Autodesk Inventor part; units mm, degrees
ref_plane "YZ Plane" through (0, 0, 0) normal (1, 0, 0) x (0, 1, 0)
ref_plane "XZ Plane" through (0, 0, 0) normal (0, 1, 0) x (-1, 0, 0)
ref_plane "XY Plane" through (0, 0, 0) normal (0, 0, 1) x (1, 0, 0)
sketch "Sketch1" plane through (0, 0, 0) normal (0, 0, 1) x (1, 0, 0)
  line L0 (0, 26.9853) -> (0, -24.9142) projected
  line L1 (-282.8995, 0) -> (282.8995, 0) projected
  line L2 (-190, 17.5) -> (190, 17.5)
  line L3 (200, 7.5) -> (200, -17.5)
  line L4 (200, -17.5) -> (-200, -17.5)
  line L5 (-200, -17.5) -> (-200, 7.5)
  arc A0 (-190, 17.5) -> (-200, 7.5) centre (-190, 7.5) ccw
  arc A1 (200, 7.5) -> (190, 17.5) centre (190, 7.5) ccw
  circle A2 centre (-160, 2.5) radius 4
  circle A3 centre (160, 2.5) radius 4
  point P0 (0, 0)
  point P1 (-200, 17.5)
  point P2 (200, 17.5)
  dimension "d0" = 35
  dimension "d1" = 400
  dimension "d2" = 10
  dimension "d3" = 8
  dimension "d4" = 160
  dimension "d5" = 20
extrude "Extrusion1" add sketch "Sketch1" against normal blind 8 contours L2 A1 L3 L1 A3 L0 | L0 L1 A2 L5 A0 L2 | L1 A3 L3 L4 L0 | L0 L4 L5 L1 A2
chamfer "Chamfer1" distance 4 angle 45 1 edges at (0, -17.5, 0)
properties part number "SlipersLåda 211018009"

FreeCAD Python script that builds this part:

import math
import FreeCAD as App
import Part
import Sketcher
Q = App.Units.Quantity


def edges_at(feature, points):
    """Names of the edges that pass closest to the given points."""
    edges = feature.Shape.Edges
    near = lambda p: min(range(len(edges)), key=lambda i: edges[i].distToShape(Part.Vertex(*p))[0])
    return sorted({f"Edge{near(p) + 1}" for p in points})

doc = App.newDocument("Part")
body = doc.addObject("PartDesign::Body", "Body")

sketch1 = doc.addObject("Sketcher::SketchObject", "Sketch")
body.addObject(sketch1)
sketch1.AttachmentSupport = (doc.XY_Plane, [""])
sketch1.MapMode = "FlatFace"
sketch1.addGeometry([
    Part.LineSegment(App.Vector(190, 17.5, 0), App.Vector(-190, 17.5, 0)),
    Part.ArcOfCircle(Part.Circle(App.Vector(-190, 7.5, 0), App.Vector(0, 0, 1), 10), math.radians(90), math.radians(180)),
    Part.LineSegment(App.Vector(-200, 7.5, 0), App.Vector(-200, -17.5, 0)),
    Part.LineSegment(App.Vector(-200, -17.5, 0), App.Vector(200, -17.5, 0)),
    Part.LineSegment(App.Vector(200, -17.5, 0), App.Vector(200, 7.5, 0)),
    Part.ArcOfCircle(Part.Circle(App.Vector(190, 7.5, 0), App.Vector(0, 0, 1), 10), math.radians(0), math.radians(90)),
    Part.Circle(App.Vector(160, 2.5, 0), App.Vector(0, 0, 1), 4),
    Part.Circle(App.Vector(-160, 2.5, 0), App.Vector(0, 0, 1), 4),
], False)
sketch1.addConstraint([
    Sketcher.Constraint("Tangent", 0, 2, 1, 1),
    Sketcher.Constraint("Tangent", 1, 2, 2, 1),
    Sketcher.Constraint("Coincident", 2, 2, 3, 1),
    Sketcher.Constraint("Coincident", 3, 2, 4, 1),
    Sketcher.Constraint("Tangent", 4, 2, 5, 1),
    Sketcher.Constraint("Tangent", 5, 2, 0, 1),
    Sketcher.Constraint("Horizontal", 0),
    Sketcher.Constraint("Vertical", 2),
    Sketcher.Constraint("Horizontal", 3),
    Sketcher.Constraint("Vertical", 4),
    Sketcher.Constraint("Equal", 1, 5),
    Sketcher.Constraint("Equal", 6, 7),
    Sketcher.Constraint("Symmetric", 6, 3, 7, 3, -2),
    Sketcher.Constraint("Diameter", 6, Q("8 mm")),
    Sketcher.Constraint("Radius", 1, Q("10 mm")),
    Sketcher.Constraint("DistanceX", 3, 1, 3, 2, Q("400 mm")),
    Sketcher.Constraint("DistanceX", -1, 1, 6, 3, Q("160 mm")),
    Sketcher.Constraint("DistanceY", 2, 2, 0, 2, Q("35 mm")),
    Sketcher.Constraint("DistanceY", 2, 2, 7, 3, Q("20 mm")),
    Sketcher.Constraint("DistanceX", 1, 3, -1, 1, Q("190 mm")),
    Sketcher.Constraint("DistanceY", -1, 1, 1, 3, Q("7.5 mm")),
])
pad1 = doc.addObject("PartDesign::Pad", "Pad")
body.addObject(pad1)
pad1.Profile = sketch1
pad1.Length = 8
pad1.Reversed = True
doc.recompute()

chamfer = doc.addObject("PartDesign::Chamfer", "Chamfer")
body.addObject(chamfer)
chamfer.Base = (pad1, edges_at(pad1, [(0, -17.5, 0)]))
chamfer.Size = 4

doc.recompute()
